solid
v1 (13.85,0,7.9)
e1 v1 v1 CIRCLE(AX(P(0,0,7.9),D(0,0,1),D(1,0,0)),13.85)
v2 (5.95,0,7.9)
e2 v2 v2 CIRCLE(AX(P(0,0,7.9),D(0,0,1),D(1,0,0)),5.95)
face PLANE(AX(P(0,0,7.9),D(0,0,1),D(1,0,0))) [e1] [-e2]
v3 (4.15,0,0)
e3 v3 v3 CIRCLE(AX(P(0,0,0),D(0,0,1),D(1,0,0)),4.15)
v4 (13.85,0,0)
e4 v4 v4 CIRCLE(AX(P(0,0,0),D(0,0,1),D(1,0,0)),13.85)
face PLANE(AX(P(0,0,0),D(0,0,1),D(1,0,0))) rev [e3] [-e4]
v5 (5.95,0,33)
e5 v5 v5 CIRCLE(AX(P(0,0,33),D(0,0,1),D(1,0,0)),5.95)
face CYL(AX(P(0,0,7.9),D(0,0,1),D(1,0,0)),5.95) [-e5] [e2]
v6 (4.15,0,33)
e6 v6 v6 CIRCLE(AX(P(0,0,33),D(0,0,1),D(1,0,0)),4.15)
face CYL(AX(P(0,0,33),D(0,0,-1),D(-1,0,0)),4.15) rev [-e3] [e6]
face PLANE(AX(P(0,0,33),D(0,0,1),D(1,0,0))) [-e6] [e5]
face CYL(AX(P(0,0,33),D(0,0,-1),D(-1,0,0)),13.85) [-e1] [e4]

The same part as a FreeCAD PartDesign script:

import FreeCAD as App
import Part
import Sketcher
from FreeCAD import Vector

doc = App.newDocument("Part")
body = doc.addObject("PartDesign::Body", "Body")

# Sketch on XY plane
sketch1 = body.newObject("Sketcher::SketchObject", "Sketch")
sketch1.AttachmentSupport = (doc.getObject("XY_Plane"), [""])
sketch1.MapMode = "FlatFace"
sketch1.addGeometry([
    Part.Circle(Vector(0, 0, 0), Vector(0, 0, 1), 13.8),
    Part.Circle(Vector(0, 0, 0), Vector(0, 0, 1), 4.2),
], False)
sketch1.addConstraint([
    Sketcher.Constraint("Coincident", 0, 3, -1, 1),
    Sketcher.Constraint("Coincident", 1, 3, -1, 1),
    Sketcher.Constraint("Diameter", 0, 27.7),
    Sketcher.Constraint("Diameter", 1, 8.3),
])
pad1 = body.newObject("PartDesign::Pad", "Pad")
pad1.Profile = sketch1
pad1.Length = 33

# Sketch on XY plane
sketch2 = body.newObject("Sketcher::SketchObject", "Sketch001")
sketch2.AttachmentSupport = (doc.getObject("XY_Plane"), [""])
sketch2.MapMode = "FlatFace"
sketch2.AttachmentOffset = App.Placement(Vector(0, 0, 7.9), App.Rotation())
sketch2.addGeometry([
    Part.Circle(Vector(0, 0, 0), Vector(0, 0, 1), 14),
    Part.Circle(Vector(0, 0, 0), Vector(0, 0, 1), 6),
], False)
sketch2.addConstraint([
    Sketcher.Constraint("Coincident", 0, 3, -1, 1),
    Sketcher.Constraint("Coincident", 1, 3, -1, 1),
    Sketcher.Constraint("Diameter", 0, 27.7),
    Sketcher.Constraint("Diameter", 1, 11.9),
])
pocket1 = body.newObject("PartDesign::Pocket", "Pocket")
pocket1.Profile = sketch2
pocket1.Length = 25.1
pocket1.Reversed = True

doc.recompute()
